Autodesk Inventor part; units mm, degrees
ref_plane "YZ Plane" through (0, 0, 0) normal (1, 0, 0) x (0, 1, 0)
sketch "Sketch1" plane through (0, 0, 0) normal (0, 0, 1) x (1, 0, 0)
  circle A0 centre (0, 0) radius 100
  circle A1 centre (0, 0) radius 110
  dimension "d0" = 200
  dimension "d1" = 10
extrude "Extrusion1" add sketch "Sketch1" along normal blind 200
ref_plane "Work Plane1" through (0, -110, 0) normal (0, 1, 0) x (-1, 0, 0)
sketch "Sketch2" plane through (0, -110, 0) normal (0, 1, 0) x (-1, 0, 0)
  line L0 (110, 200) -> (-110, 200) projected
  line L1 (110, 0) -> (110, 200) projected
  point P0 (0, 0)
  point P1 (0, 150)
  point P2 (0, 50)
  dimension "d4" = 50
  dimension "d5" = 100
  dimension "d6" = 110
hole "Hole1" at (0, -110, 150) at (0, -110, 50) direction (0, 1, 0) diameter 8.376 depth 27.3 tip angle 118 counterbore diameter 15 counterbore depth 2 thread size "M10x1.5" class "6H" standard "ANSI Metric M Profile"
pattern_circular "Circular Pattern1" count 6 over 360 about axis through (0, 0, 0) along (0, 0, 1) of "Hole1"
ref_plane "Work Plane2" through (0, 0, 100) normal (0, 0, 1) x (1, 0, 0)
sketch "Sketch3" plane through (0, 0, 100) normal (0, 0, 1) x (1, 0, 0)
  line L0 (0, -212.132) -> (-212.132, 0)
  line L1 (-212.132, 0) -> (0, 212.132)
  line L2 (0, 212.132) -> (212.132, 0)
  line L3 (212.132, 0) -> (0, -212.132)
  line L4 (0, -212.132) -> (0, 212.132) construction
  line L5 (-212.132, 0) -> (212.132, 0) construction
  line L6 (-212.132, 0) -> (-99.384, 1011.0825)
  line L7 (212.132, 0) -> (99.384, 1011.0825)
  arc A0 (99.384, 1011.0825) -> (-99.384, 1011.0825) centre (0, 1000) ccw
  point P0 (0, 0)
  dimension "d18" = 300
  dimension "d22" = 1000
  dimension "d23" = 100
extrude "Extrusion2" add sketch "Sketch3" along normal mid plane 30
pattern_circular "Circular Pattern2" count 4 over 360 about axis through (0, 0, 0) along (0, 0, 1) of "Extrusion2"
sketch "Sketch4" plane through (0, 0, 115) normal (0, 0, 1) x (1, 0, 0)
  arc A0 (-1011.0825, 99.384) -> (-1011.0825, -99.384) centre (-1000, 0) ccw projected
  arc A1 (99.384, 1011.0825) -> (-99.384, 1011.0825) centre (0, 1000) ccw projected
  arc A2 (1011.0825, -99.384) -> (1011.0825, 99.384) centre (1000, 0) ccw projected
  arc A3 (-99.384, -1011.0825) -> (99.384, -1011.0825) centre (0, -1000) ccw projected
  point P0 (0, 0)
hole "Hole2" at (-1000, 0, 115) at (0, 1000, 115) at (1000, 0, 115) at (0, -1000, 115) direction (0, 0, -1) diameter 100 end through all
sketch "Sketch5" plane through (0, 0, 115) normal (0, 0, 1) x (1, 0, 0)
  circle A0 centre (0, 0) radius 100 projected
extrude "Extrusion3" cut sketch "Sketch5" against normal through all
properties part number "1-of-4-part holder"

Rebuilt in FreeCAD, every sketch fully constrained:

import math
import FreeCAD as App
import Part
import Sketcher

V = App.Vector

doc = App.newDocument("Part")
body = doc.addObject("PartDesign::Body", "Body")

sketch1 = doc.addObject("Sketcher::SketchObject", "Sketch")
body.addObject(sketch1)
sketch1.AttachmentSupport = (doc.XY_Plane, [""])
sketch1.MapMode = "FlatFace"
sketch1.addGeometry(Part.Circle(V(0, 0, 0), V(0, 0, 1), 110), False)
sketch1.addGeometry(Part.Circle(V(0, 0, 0), V(0, 0, 1), 100), False)
sketch1.addConstraint(Sketcher.Constraint("Coincident", 0, 3, -1, 1))
sketch1.addConstraint(Sketcher.Constraint("Coincident", 1, 3, -1, 1))
sketch1.addConstraint(Sketcher.Constraint("Diameter", 1, 200.0))
sketch1.addConstraint(Sketcher.Constraint("Diameter", 0, 220.0))
pad1 = doc.addObject("PartDesign::Pad", "Pad")
body.addObject(pad1)
pad1.Profile = sketch1
pad1.Length = 200

sketch2 = doc.addObject("Sketcher::SketchObject", "Sketch001")
body.addObject(sketch2)
sketch2.AttachmentSupport = (doc.XZ_Plane, [""])
sketch2.MapMode = "FlatFace"
sketch2.AttachmentOffset = App.Placement(V(0, 0, 110), App.Rotation())
sketch2.addGeometry(Part.Circle(V(0, 150, 0), V(0, 0, 1), 4.2), False)
sketch2.addGeometry(Part.Circle(V(0, 50, 0), V(0, 0, 1), 4.2), False)
sketch2.addConstraint(Sketcher.Constraint("Equal", 0, 1))
sketch2.addConstraint(Sketcher.Constraint("PointOnObject", 0, 3, -2))
sketch2.addConstraint(Sketcher.Constraint("PointOnObject", 1, 3, -2))
sketch2.addConstraint(Sketcher.Constraint("Diameter", 0, 8.376))
sketch2.addConstraint(Sketcher.Constraint("DistanceY", -1, 1, 0, 3, 150.0))
sketch2.addConstraint(Sketcher.Constraint("DistanceY", -1, 1, 1, 3, 50.0))
doc.recompute()
hole = doc.addObject("PartDesign::Hole", "Hole")
body.addObject(hole)
hole.Profile = sketch2
hole.ThreadType = "None"
hole.Diameter = 8.376
hole.DepthType = "Dimension"
hole.Depth = 27.3
hole.DrillPoint = "Angled"
hole.DrillPointAngle = 118
hole.HoleCutType = "Counterbore"
hole.HoleCutDiameter = 15
hole.HoleCutDepth = 2
doc.recompute()

polarpattern = doc.addObject("PartDesign::PolarPattern", "PolarPattern")
body.addObject(polarpattern)
polarpattern.Originals = [hole]
polarpattern.Axis = (doc.Z_Axis, [""])
polarpattern.Angle = 360
polarpattern.Occurrences = 6
body.Tip = polarpattern

sketch3 = doc.addObject("Sketcher::SketchObject", "Sketch002")
body.addObject(sketch3)
sketch3.AttachmentSupport = (doc.XY_Plane, [""])
sketch3.MapMode = "FlatFace"
sketch3.AttachmentOffset = App.Placement(V(0, 0, 100), App.Rotation())
sketch3.addGeometry(Part.LineSegment(V(-212, 0, 0), V(0, -212, 0)), False)
sketch3.addGeometry(Part.LineSegment(V(0, -212, 0), V(212, 0, 0)), False)
sketch3.addGeometry(Part.LineSegment(V(212, 0, 0), V(99, 1011, 0)), False)
sketch3.addGeometry(Part.ArcOfCircle(Part.Circle(V(0, 1000, 0), V(0, 0, 1), 100), math.radians(6), math.radians(174)), False)
sketch3.addGeometry(Part.LineSegment(V(-99, 1011, 0), V(-212, 0, 0)), False)
sketch3.addConstraint(Sketcher.Constraint("Coincident", 0, 2, 1, 1))
sketch3.addConstraint(Sketcher.Constraint("Coincident", 1, 2, 2, 1))
sketch3.addConstraint(Sketcher.Constraint("Tangent", 2, 2, 3, 1))
sketch3.addConstraint(Sketcher.Constraint("Tangent", 3, 2, 4, 1))
sketch3.addConstraint(Sketcher.Constraint("Coincident", 4, 2, 0, 1))
sketch3.addConstraint(Sketcher.Constraint("Symmetric", 1, 2, 4, 2, -1, 1))
sketch3.addConstraint(Sketcher.Constraint("PointOnObject", 3, 3, -2))
sketch3.addConstraint(Sketcher.Constraint("PointOnObject", 0, 2, -2))
sketch3.addConstraint(Sketcher.Constraint("PointOnObject", 1, 2, -1))
sketch3.addConstraint(Sketcher.Constraint("Perpendicular", 0, 1))
sketch3.addConstraint(Sketcher.Constraint("Radius", 3, 100.0))
sketch3.addConstraint(Sketcher.Constraint("Distance", 0, 300.0))
sketch3.addConstraint(Sketcher.Constraint("DistanceY", -1, 1, 3, 3, 1000.0))
pad2 = doc.addObject("PartDesign::Pad", "Pad001")
body.addObject(pad2)
pad2.Profile = sketch3
pad2.Length = 30
pad2.Midplane = True
doc.recompute()

polarpattern2 = doc.addObject("PartDesign::PolarPattern", "PolarPattern001")
body.addObject(polarpattern2)
polarpattern2.Originals = [pad2]
polarpattern2.Axis = (doc.Z_Axis, [""])
polarpattern2.Angle = 360
polarpattern2.Occurrences = 4
body.Tip = polarpattern2

sketch4 = doc.addObject("Sketcher::SketchObject", "Sketch003")
body.addObject(sketch4)
sketch4.AttachmentSupport = (doc.XY_Plane, [""])
sketch4.MapMode = "FlatFace"
sketch4.AttachmentOffset = App.Placement(V(0, 0, 115), App.Rotation())
sketch4.addGeometry(Part.Circle(V(-1000, 0, 0), V(0, 0, 1), 50), False)
sketch4.addGeometry(Part.Circle(V(0, 1000, 0), V(0, 0, 1), 50), False)
sketch4.addGeometry(Part.Circle(V(1000, 0, 0), V(0, 0, 1), 50), False)
sketch4.addGeometry(Part.Circle(V(0, -1000, 0), V(0, 0, 1), 50), False)
sketch4.addConstraint(Sketcher.Constraint("Equal", 0, 1))
sketch4.addConstraint(Sketcher.Constraint("Equal", 1, 2))
sketch4.addConstraint(Sketcher.Constraint("Equal", 2, 3))
sketch4.addConstraint(Sketcher.Constraint("Symmetric", 0, 3, 2, 3, -1, 1))
sketch4.addConstraint(Sketcher.Constraint("Symmetric", 1, 3, 3, 3, -1, 1))
sketch4.addConstraint(Sketcher.Constraint("PointOnObject", 0, 3, -1))
sketch4.addConstraint(Sketcher.Constraint("PointOnObject", 1, 3, -2))
sketch4.addConstraint(Sketcher.Constraint("Diameter", 0, 100.0))
sketch4.addConstraint(Sketcher.Constraint("DistanceX", 0, 3, -1, 1, 1000.0))
sketch4.addConstraint(Sketcher.Constraint("DistanceY", -1, 1, 1, 3, 1000.0))
doc.recompute()
hole2 = doc.addObject("PartDesign::Hole", "Hole001")
body.addObject(hole2)
hole2.Profile = sketch4
hole2.ThreadType = "None"
hole2.Diameter = 100
hole2.DepthType = "ThroughAll"

sketch5 = doc.addObject("Sketcher::SketchObject", "Sketch004")
body.addObject(sketch5)
sketch5.AttachmentSupport = (doc.XY_Plane, [""])
sketch5.MapMode = "FlatFace"
sketch5.AttachmentOffset = App.Placement(V(0, 0, 115), App.Rotation())
sketch5.addGeometry(Part.Circle(V(0, 0, 0), V(0, 0, 1), 100), False)
sketch5.addConstraint(Sketcher.Constraint("Coincident", 0, 3, -1, 1))
sketch5.addConstraint(Sketcher.Constraint("Diameter", 0, 200.0))
pocket1 = doc.addObject("PartDesign::Pocket", "Pocket")
body.addObject(pocket1)
pocket1.Profile = sketch5
pocket1.Type = "ThroughAll"

doc.recompute()
